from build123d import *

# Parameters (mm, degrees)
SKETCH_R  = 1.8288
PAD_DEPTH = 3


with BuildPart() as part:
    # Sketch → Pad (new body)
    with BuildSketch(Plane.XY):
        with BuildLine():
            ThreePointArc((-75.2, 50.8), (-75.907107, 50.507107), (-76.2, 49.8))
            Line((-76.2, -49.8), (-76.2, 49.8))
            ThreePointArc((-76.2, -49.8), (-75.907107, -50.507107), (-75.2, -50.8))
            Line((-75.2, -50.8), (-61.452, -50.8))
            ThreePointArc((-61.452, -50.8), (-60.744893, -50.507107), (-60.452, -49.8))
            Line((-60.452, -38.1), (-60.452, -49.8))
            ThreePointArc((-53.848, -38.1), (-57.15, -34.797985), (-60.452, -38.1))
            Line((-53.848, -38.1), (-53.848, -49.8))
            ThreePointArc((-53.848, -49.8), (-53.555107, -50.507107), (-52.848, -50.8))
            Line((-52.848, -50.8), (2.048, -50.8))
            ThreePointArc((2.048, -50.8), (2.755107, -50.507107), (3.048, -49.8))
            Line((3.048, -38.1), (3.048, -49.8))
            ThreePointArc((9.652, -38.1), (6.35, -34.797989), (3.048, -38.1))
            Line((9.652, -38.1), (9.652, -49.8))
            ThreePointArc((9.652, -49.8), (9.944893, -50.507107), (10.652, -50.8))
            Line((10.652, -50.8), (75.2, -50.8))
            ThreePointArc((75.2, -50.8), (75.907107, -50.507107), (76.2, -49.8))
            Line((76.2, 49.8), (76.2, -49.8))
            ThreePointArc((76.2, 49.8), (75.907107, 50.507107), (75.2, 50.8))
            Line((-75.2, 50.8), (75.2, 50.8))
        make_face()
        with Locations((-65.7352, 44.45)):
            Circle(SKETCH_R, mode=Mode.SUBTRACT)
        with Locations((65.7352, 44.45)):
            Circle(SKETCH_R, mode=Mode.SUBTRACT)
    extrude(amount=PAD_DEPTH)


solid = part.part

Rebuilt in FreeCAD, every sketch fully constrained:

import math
import FreeCAD as App
import Part
import Sketcher

V = App.Vector

doc = App.newDocument("Part")
body = doc.addObject("PartDesign::Body", "Body")

sketch1 = doc.addObject("Sketcher::SketchObject", "Sketch")
body.addObject(sketch1)
sketch1.AttachmentSupport = (doc.XY_Plane, [""])
sketch1.MapMode = "FlatFace"
sketch1.addGeometry([
    Part.ArcOfCircle(Part.Circle(V(-75.200001, 49.800001, 0), V(0, 0, 1), 0.999999), math.radians(89.999957), math.radians(180.000043)),
    Part.LineSegment(V(-76.2, 49.8, 0), V(-76.2, -49.8, 0)),
    Part.ArcOfCircle(Part.Circle(V(-75.200001, -49.800001, 0), V(0, 0, 1), 0.999999), math.radians(179.999957), math.radians(270.000043)),
    Part.LineSegment(V(-75.2, -50.8, 0), V(-61.452, -50.8, 0)),
    Part.ArcOfCircle(Part.Circle(V(-61.451999, -49.800001, 0), V(0, 0, 1), 0.999999), math.radians(-90.000043), math.radians(0.000043)),
    Part.LineSegment(V(-60.452, -49.8, 0), V(-60.452, -38.1, 0)),
    Part.ArcOfCircle(Part.Circle(V(-57.15, -38.099985, 0), V(0, 0, 1), 3.302), math.radians(-0.00026), math.radians(180.00026)),
    Part.LineSegment(V(-53.848, -38.1, 0), V(-53.848, -49.8, 0)),
    Part.ArcOfCircle(Part.Circle(V(-52.848001, -49.800001, 0), V(0, 0, 1), 0.999999), math.radians(179.999957), math.radians(270.000043)),
    Part.LineSegment(V(-52.848, -50.8, 0), V(2.048, -50.8, 0)),
    Part.ArcOfCircle(Part.Circle(V(2.048001, -49.800001, 0), V(0, 0, 1), 0.999999), math.radians(-90.000043), math.radians(0.000043)),
    Part.LineSegment(V(3.048, -49.8, 0), V(3.048, -38.1, 0)),
    Part.ArcOfCircle(Part.Circle(V(6.35, -38.099989, 0), V(0, 0, 1), 3.302), math.radians(-0.000191), math.radians(180.000191)),
    Part.LineSegment(V(9.652, -38.1, 0), V(9.652, -49.8, 0)),
    Part.ArcOfCircle(Part.Circle(V(10.651999, -49.800001, 0), V(0, 0, 1), 0.999999), math.radians(179.999957), math.radians(270.000043)),
    Part.LineSegment(V(10.652, -50.8, 0), V(75.2, -50.8, 0)),
    Part.ArcOfCircle(Part.Circle(V(75.200001, -49.800001, 0), V(0, 0, 1), 0.999999), math.radians(-90.000043), math.radians(0.000043)),
    Part.LineSegment(V(76.2, -49.8, 0), V(76.2, 49.8, 0)),
    Part.ArcOfCircle(Part.Circle(V(75.200001, 49.800001, 0), V(0, 0, 1), 0.999999), math.radians(-0.000043), math.radians(90.000043)),
    Part.LineSegment(V(75.2, 50.8, 0), V(-75.2, 50.8, 0)),
    Part.Circle(V(-65.7352, 44.45, 0), V(0, 0, 1), 1.8288),
    Part.Circle(V(65.7352, 44.45, 0), V(0, 0, 1), 1.8288),
], False)
sketch1.addConstraint([
    Sketcher.Constraint("Tangent", 0, 2, 1, 1),
    Sketcher.Constraint("Tangent", 1, 2, 2, 1),
    Sketcher.Constraint("Tangent", 2, 2, 3, 1),
    Sketcher.Constraint("Tangent", 3, 2, 4, 1),
    Sketcher.Constraint("Tangent", 4, 2, 5, 1),
    Sketcher.Constraint("Coincident", 5, 2, 6, 2),
    Sketcher.Constraint("Coincident", 6, 1, 7, 1),
    Sketcher.Constraint("Tangent", 7, 2, 8, 1),
    Sketcher.Constraint("Tangent", 8, 2, 9, 1),
    Sketcher.Constraint("Tangent", 9, 2, 10, 1),
    Sketcher.Constraint("Tangent", 10, 2, 11, 1),
    Sketcher.Constraint("Coincident", 11, 2, 12, 2),
    Sketcher.Constraint("Coincident", 12, 1, 13, 1),
    Sketcher.Constraint("Tangent", 13, 2, 14, 1),
    Sketcher.Constraint("Tangent", 14, 2, 15, 1),
    Sketcher.Constraint("Tangent", 15, 2, 16, 1),
    Sketcher.Constraint("Tangent", 16, 2, 17, 1),
    Sketcher.Constraint("Tangent", 17, 2, 18, 1),
    Sketcher.Constraint("Tangent", 18, 2, 19, 1),
    Sketcher.Constraint("Tangent", 19, 2, 0, 1),
    Sketcher.Constraint("Vertical", 1),
    Sketcher.Constraint("Horizontal", 3),
    Sketcher.Constraint("Vertical", 5),
    Sketcher.Constraint("Vertical", 7),
    Sketcher.Constraint("Horizontal", 9),
    Sketcher.Constraint("Vertical", 11),
    Sketcher.Constraint("Vertical", 13),
    Sketcher.Constraint("Horizontal", 15),
    Sketcher.Constraint("Vertical", 17),
    Sketcher.Constraint("Horizontal", 19),
    Sketcher.Constraint("Equal", 0, 2),
    Sketcher.Constraint("Equal", 2, 4),
    Sketcher.Constraint("Equal", 4, 8),
    Sketcher.Constraint("Equal", 8, 10),
    Sketcher.Constraint("Equal", 6, 12),
    Sketcher.Constraint("Equal", 10, 14),
    Sketcher.Constraint("Equal", 14, 16),
    Sketcher.Constraint("Equal", 16, 18),
    Sketcher.Constraint("Equal", 20, 21),
    Sketcher.Constraint("Symmetric", 0, 3, 16, 3, -1, 1),
    Sketcher.Constraint("Symmetric", 20, 3, 21, 3, -2),
    Sketcher.Constraint("Horizontal", 4, 3, 8, 3),
    Sketcher.Constraint("Horizontal", 10, 3, 14, 3),
    Sketcher.Constraint("Horizontal", 5, 2, 6, 1),
    Sketcher.Constraint("Horizontal", 6, 1, 11, 2),
    Sketcher.Constraint("Horizontal", 11, 2, 12, 1),
    Sketcher.Constraint("Radius", 0, 0.999999),
    Sketcher.Constraint("DistanceX", 19, 2, 19, 1, 150.4),
    Sketcher.Constraint("DistanceY", 1, 2, 1, 1, 99.6),
    Sketcher.Constraint("DistanceY", 5, 1, 5, 2, 11.7),
    Sketcher.Constraint("Radius", 6, 3.302),
    Sketcher.Constraint("Diameter", 20, 3.6576),
    Sketcher.Constraint("DistanceX", 4, 3, 10, 3, 63.5),
    Sketcher.Constraint("DistanceX", 3, 1, 3, 2, 13.748),
    Sketcher.Constraint("DistanceY", -1, 1, 20, 3, 44.45),
    Sketcher.Constraint("DistanceX", 20, 3, -1, 1, 65.7352),
    Sketcher.Constraint("DistanceY", 12, 3, -1, 1, 38.099989),
    Sketcher.Constraint("DistanceY", 6, 3, -1, 1, 38.099985),
])
pad1 = doc.addObject("PartDesign::Pad", "Pad")
body.addObject(pad1)
pad1.Profile = sketch1
pad1.Length = 3

doc.recompute()
